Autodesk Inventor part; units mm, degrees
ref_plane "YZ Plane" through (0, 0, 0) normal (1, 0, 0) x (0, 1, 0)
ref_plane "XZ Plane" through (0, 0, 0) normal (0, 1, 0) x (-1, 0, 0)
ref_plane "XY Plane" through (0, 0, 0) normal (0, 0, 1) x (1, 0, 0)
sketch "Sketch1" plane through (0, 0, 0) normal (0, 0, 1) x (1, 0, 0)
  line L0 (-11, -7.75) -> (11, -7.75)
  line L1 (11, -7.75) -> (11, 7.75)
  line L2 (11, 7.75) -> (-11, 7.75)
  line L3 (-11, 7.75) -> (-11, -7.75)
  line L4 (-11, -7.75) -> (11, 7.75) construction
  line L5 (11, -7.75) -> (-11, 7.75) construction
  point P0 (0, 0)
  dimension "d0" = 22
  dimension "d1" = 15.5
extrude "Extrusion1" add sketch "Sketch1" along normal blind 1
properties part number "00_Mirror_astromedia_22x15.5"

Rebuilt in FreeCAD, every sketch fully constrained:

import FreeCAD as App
import Part
import Sketcher
Q = App.Units.Quantity


def add_polygon(sketch, points):
    """Adds a closed chain of lines whose ends are joined by coincident constraints."""
    first, n = sketch.GeometryCount, len(points)
    for a, b in zip(points, points[1:] + points[:1]):
        sketch.addGeometry(Part.LineSegment(App.Vector(*a, 0), App.Vector(*b, 0)), False)
    for i in range(n):
        sketch.addConstraint(Sketcher.Constraint("Coincident", first + i, 2, first + (i + 1) % n, 1))

doc = App.newDocument("Part")
body = doc.addObject("PartDesign::Body", "Body")

# Sketch on XY plane
sketch1 = doc.addObject("Sketcher::SketchObject", "Sketch")
body.addObject(sketch1)
sketch1.AttachmentSupport = (doc.XY_Plane, [""])
sketch1.MapMode = "FlatFace"
add_polygon(sketch1, [(-11, 8), (-11, -8), (11, -8), (11, 8)])  # lines 0-3
sketch1.addConstraint([
    Sketcher.Constraint("Vertical", 0),
    Sketcher.Constraint("Horizontal", 1),
    Sketcher.Constraint("Vertical", 2),
    Sketcher.Constraint("Horizontal", 3),
    Sketcher.Constraint("Symmetric", 0, 2, 2, 2, -1, 1),
    Sketcher.Constraint("DistanceX", 1, 1, 1, 2, Q("22 mm")),
    Sketcher.Constraint("DistanceY", 0, 2, 0, 1, Q("15.5 mm")),
])
pad1 = doc.addObject("PartDesign::Pad", "Pad")
body.addObject(pad1)
pad1.Profile = sketch1
pad1.Length = 1

doc.recompute()
